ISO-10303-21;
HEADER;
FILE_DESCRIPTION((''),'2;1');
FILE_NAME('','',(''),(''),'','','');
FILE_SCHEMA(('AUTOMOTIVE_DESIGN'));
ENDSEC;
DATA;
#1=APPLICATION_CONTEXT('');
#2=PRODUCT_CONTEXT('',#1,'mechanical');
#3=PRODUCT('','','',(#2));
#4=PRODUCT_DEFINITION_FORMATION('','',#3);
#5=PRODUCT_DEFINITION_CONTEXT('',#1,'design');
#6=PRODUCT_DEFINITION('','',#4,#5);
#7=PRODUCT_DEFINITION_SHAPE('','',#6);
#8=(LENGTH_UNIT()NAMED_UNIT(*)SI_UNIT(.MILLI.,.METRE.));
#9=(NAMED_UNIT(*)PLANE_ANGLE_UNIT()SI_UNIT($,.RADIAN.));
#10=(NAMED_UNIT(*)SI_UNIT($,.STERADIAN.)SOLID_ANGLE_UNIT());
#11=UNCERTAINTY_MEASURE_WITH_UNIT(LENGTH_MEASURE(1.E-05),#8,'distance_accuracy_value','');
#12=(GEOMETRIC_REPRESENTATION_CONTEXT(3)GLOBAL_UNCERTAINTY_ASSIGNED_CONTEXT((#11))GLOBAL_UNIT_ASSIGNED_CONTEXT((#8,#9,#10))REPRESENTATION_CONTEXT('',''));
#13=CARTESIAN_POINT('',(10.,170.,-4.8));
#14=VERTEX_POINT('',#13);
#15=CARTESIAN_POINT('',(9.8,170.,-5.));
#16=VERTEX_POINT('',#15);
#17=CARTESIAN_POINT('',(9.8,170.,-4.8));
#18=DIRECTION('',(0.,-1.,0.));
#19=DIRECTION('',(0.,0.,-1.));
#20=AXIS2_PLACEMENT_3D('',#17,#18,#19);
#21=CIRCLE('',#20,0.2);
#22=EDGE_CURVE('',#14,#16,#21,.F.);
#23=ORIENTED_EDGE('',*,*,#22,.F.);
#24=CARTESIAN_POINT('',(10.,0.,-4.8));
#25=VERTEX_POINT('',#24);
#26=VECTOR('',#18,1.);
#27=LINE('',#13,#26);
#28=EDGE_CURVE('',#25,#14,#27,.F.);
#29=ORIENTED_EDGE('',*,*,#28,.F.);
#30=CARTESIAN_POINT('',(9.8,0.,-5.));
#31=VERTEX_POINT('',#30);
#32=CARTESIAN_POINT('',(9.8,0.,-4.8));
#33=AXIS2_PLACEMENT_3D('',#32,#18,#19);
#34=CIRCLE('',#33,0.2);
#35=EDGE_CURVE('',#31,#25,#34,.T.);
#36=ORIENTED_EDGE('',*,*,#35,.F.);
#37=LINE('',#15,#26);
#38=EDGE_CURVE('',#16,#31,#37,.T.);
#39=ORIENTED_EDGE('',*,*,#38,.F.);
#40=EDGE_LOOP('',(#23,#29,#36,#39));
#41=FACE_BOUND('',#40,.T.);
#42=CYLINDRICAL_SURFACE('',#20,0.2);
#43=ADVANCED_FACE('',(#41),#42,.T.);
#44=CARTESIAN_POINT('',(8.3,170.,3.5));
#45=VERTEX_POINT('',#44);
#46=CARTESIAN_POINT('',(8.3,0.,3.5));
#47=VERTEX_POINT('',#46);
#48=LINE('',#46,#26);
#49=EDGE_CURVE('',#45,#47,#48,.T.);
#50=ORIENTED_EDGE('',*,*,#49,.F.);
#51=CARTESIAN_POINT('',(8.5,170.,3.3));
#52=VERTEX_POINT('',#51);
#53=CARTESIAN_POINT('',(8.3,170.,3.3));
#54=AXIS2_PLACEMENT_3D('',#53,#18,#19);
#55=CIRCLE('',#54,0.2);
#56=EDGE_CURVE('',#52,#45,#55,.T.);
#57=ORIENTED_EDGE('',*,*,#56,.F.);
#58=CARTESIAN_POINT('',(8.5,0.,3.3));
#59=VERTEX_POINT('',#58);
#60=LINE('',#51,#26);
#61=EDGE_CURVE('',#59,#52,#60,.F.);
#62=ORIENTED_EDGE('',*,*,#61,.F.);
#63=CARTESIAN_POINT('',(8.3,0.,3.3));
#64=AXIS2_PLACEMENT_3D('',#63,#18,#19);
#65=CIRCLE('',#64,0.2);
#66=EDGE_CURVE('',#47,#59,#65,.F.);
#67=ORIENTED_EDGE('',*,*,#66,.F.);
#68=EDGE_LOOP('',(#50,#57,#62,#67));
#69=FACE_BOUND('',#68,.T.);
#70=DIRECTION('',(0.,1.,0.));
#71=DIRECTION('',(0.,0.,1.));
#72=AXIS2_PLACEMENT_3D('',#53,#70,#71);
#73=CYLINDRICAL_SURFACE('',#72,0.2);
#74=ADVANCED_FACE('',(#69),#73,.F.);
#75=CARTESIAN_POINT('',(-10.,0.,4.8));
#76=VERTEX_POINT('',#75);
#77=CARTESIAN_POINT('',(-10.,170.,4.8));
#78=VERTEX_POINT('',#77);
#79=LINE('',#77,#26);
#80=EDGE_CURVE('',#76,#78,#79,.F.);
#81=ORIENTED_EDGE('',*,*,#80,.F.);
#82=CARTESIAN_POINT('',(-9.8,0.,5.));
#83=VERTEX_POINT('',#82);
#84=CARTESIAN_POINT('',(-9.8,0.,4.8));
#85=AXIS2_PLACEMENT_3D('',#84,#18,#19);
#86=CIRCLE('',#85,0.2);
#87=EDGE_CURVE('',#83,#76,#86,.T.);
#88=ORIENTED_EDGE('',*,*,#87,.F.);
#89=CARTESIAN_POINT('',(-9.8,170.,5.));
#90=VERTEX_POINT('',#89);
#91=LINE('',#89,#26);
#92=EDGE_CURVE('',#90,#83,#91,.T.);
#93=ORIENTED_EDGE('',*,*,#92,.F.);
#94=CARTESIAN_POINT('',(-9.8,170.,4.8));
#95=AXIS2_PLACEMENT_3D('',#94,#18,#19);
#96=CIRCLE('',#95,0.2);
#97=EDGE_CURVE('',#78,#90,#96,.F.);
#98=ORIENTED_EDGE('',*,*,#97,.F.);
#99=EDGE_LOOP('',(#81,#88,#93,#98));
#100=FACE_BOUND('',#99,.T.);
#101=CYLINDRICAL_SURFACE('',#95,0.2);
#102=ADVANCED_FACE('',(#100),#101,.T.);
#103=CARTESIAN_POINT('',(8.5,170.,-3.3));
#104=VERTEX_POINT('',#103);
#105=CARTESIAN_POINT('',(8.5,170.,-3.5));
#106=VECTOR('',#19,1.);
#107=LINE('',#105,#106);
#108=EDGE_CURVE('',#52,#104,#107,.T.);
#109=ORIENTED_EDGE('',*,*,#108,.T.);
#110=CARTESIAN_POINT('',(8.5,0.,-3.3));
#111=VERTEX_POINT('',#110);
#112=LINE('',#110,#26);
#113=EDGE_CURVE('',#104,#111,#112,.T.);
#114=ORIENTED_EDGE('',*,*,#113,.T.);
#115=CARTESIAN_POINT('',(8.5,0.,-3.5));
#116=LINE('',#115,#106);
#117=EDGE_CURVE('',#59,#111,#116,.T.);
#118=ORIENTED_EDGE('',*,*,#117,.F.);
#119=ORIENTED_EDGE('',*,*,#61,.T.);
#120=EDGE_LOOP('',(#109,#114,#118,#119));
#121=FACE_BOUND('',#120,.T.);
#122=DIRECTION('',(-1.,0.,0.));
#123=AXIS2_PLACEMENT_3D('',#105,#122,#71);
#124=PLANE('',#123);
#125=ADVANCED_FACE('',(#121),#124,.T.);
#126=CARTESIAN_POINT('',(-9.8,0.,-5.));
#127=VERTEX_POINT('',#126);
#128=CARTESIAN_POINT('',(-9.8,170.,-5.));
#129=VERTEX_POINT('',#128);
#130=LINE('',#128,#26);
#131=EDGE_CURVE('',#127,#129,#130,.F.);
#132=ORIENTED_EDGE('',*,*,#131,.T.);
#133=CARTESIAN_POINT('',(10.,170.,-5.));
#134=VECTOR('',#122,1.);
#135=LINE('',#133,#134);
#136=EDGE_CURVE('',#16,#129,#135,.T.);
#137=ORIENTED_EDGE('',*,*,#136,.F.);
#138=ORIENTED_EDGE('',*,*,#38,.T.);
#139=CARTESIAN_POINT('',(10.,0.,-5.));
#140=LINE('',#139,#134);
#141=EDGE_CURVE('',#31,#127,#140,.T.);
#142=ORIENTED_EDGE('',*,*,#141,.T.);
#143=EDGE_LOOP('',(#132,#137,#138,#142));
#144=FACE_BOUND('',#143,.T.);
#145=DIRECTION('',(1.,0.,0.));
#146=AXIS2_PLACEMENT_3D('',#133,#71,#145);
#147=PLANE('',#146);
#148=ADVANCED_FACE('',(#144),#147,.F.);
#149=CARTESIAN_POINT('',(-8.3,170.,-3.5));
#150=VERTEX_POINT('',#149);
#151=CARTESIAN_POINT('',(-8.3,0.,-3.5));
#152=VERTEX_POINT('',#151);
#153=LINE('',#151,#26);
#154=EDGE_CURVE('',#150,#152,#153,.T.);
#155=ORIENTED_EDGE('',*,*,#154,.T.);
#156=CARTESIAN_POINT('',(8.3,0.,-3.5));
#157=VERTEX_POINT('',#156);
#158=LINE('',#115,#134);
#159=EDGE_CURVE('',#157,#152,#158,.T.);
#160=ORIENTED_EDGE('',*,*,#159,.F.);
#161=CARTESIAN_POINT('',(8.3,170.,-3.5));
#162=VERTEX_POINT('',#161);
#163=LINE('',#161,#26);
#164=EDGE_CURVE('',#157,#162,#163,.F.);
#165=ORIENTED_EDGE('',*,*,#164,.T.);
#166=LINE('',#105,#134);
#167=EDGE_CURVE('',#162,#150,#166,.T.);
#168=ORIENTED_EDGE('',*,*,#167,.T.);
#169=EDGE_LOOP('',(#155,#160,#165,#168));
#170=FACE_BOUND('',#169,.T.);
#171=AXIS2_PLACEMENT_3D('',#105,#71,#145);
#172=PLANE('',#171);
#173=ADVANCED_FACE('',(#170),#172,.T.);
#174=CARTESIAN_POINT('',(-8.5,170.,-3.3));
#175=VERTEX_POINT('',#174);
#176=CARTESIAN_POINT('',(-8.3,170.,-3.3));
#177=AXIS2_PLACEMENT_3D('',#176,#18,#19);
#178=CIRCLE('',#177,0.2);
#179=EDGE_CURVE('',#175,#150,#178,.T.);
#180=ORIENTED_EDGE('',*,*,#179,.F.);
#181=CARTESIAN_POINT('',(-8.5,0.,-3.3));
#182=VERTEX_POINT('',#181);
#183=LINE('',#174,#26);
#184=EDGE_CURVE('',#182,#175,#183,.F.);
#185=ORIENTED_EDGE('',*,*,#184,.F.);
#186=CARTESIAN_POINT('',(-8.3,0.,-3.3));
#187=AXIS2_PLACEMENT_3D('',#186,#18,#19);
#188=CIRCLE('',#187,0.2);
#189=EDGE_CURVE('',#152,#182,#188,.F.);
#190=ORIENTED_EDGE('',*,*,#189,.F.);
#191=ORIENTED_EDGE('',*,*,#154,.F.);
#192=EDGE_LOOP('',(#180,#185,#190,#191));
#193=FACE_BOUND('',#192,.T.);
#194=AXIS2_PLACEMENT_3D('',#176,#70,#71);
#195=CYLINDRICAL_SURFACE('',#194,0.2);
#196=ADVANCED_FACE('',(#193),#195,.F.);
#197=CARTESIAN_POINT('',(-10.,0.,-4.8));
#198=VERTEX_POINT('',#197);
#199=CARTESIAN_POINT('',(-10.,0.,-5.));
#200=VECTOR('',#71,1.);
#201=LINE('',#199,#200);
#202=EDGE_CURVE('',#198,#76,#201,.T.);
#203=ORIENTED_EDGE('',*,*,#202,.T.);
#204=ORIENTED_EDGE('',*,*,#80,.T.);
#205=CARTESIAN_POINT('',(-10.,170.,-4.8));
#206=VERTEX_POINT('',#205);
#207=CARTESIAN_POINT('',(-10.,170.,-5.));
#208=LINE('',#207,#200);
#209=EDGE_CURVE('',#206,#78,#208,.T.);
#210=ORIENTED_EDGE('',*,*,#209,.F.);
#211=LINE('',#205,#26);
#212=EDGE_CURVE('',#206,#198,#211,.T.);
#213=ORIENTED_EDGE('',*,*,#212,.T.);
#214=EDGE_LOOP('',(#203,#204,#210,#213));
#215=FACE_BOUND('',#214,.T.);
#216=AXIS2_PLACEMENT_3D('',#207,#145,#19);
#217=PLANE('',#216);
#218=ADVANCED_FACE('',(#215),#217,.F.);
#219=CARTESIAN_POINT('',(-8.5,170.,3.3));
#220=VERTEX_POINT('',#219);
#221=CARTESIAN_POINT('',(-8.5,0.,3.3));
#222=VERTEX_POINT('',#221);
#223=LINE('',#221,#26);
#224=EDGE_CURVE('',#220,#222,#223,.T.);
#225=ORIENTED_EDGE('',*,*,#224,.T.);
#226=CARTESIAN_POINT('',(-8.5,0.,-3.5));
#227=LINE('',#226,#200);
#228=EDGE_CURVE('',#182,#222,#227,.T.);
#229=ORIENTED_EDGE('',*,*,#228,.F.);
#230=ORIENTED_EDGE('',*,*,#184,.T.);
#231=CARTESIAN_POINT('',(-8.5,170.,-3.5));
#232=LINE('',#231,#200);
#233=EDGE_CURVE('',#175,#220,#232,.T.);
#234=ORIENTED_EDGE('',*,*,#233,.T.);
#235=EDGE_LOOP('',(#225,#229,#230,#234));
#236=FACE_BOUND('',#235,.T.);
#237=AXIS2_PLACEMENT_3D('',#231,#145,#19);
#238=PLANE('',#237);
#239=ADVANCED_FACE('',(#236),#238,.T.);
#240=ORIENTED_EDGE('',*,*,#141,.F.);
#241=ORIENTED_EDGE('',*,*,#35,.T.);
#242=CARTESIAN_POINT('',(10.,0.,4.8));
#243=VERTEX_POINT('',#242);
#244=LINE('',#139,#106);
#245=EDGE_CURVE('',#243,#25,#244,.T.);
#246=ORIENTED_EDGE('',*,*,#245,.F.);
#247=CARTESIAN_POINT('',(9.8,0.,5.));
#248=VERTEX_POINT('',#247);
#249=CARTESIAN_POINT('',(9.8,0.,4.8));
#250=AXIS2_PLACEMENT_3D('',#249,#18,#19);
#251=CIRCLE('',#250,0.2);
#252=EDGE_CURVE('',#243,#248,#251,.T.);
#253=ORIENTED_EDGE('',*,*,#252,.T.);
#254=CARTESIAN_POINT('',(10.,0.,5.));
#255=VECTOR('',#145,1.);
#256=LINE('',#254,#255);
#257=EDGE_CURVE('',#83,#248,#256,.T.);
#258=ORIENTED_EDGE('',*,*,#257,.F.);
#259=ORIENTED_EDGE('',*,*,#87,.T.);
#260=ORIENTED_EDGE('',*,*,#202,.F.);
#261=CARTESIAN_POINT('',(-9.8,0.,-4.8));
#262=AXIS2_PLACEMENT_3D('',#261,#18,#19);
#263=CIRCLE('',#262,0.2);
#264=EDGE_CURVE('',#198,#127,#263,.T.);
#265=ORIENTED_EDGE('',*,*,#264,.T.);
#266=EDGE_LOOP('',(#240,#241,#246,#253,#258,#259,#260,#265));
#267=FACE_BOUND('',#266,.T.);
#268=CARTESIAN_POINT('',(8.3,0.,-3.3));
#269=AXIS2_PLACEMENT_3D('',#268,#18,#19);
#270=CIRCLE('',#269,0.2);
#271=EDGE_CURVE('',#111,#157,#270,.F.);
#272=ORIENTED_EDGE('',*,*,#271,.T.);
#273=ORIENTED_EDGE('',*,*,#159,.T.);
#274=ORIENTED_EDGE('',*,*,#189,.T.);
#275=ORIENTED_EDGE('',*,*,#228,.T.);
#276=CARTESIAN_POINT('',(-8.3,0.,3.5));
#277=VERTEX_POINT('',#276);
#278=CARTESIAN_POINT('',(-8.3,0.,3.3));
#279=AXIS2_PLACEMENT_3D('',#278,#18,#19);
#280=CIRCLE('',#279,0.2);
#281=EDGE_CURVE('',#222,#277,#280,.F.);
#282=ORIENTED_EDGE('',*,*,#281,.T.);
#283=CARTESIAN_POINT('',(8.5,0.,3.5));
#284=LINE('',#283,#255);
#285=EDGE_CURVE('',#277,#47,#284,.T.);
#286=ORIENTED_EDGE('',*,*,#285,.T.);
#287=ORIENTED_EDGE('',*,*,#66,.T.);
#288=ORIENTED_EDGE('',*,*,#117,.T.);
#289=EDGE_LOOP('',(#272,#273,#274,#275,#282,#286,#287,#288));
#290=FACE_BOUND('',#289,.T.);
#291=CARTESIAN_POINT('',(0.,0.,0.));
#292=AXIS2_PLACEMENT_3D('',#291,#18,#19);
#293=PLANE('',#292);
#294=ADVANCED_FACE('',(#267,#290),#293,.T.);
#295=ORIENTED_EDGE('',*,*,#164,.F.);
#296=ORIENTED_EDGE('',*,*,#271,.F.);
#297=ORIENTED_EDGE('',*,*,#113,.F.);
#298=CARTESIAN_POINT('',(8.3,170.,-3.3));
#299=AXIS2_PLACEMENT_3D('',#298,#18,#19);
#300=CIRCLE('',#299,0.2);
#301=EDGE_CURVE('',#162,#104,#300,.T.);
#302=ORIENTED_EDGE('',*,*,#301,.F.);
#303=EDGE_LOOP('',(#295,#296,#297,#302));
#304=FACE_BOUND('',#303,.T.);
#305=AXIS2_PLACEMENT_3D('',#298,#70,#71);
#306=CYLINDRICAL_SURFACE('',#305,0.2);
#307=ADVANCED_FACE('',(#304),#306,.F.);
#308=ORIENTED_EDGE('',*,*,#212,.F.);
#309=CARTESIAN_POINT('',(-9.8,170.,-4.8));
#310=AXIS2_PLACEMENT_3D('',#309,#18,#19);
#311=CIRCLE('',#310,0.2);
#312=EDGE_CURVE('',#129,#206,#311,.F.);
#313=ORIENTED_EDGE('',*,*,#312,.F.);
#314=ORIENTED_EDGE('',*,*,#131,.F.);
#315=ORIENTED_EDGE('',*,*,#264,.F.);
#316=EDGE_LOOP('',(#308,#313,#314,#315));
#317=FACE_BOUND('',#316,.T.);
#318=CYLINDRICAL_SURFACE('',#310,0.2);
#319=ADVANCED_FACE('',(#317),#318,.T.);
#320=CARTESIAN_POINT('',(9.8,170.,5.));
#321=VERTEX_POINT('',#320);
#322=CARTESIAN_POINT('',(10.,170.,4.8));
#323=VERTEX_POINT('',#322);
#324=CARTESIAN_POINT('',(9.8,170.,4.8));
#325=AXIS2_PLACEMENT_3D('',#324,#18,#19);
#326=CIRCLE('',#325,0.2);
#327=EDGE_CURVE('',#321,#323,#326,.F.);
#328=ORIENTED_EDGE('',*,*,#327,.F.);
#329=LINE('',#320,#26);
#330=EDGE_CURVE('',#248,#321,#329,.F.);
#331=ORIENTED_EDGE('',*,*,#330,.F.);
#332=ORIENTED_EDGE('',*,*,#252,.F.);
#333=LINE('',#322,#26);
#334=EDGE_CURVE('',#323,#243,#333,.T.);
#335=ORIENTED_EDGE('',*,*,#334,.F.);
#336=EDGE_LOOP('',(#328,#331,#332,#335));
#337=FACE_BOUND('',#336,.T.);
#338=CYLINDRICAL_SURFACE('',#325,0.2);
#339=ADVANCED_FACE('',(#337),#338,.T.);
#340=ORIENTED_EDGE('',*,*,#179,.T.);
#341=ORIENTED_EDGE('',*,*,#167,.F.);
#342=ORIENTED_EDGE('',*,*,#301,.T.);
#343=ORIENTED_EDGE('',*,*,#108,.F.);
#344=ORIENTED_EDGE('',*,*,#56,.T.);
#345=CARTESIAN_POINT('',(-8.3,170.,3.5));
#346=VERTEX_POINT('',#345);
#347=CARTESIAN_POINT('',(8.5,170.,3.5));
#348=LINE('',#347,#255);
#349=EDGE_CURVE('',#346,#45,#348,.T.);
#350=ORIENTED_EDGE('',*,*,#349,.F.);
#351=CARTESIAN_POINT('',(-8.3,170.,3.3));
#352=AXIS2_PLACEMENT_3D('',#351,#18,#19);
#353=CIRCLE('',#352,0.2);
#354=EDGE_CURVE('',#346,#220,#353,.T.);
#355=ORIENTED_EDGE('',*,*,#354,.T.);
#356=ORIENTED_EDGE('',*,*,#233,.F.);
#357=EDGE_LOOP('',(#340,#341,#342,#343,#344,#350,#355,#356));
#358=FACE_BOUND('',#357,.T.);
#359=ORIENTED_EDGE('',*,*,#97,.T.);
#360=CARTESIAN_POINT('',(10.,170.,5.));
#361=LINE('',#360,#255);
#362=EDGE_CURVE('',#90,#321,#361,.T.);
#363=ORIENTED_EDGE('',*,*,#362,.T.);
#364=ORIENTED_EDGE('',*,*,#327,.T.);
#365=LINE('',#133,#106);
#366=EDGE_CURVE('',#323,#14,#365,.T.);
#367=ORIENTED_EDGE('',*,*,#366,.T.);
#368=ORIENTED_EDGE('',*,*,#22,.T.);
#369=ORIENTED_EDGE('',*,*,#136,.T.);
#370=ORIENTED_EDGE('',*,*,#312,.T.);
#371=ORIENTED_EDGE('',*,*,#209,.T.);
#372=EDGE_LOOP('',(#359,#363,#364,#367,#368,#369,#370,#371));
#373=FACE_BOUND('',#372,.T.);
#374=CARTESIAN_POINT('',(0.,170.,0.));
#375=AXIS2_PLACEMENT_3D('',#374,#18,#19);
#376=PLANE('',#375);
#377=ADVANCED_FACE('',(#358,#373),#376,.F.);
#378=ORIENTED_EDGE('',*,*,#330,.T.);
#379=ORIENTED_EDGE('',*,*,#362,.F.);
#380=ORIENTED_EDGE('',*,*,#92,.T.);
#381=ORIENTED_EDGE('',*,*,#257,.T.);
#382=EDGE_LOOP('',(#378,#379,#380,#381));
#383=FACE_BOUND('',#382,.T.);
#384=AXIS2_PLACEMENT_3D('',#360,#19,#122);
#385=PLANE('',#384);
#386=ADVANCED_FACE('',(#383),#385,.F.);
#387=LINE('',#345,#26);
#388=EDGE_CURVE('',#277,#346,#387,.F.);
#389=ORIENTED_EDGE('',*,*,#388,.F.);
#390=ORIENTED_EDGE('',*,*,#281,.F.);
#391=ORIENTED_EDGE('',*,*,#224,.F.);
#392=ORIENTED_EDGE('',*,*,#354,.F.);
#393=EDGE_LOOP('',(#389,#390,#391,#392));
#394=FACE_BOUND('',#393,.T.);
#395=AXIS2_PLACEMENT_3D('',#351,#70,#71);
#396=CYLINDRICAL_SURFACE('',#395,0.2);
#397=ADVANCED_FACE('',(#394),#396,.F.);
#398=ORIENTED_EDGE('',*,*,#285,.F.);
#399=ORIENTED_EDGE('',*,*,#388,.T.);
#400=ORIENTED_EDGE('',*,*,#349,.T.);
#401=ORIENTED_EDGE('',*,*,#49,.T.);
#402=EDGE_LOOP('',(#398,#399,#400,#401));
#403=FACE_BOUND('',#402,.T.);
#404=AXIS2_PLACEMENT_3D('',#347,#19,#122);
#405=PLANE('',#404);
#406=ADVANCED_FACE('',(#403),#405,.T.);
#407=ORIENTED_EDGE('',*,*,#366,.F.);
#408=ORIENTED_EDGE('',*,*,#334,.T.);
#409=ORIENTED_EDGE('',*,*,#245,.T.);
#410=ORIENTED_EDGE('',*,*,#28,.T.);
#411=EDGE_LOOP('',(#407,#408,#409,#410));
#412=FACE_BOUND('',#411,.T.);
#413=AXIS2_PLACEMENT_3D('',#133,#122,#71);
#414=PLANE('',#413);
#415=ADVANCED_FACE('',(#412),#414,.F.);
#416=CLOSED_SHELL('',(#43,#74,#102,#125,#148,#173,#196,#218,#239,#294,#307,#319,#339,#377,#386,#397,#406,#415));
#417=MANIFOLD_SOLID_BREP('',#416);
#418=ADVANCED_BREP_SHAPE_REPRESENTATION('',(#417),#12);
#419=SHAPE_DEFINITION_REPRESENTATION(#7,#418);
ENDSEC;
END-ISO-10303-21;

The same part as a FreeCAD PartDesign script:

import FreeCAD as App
import Part
import Sketcher

V = App.Vector


def edges_at(feature, points):
    """Names of the edges that pass closest to the given points."""
    edges = feature.Shape.Edges
    near = lambda p: min(range(len(edges)), key=lambda i: edges[i].distToShape(Part.Vertex(*p))[0])
    return sorted({f"Edge{near(p) + 1}" for p in points})

doc = App.newDocument("Part")
params = doc.addObject("Spreadsheet::Sheet", "Params")
for row, (alias, value) in enumerate([
    ("sketch1_width", "20 mm"),
    ("sketch1_width2", "17 mm"),
    ("sketch1_height", "10 mm"),
    ("sketch1_height2", "7 mm"),
    ("pad1_length", "170 mm"),
    ("fillet_radius", "0.2 mm"),
], start=1):
    params.set(f"A{row}", alias)
    params.set(f"B{row}", "=" + value)
    params.setAlias(f"B{row}", alias)

body = doc.addObject("PartDesign::Body", "Body")

# Sketch on XZ plane
sketch1 = body.newObject("Sketcher::SketchObject", "Sketch")
sketch1.AttachmentSupport = (doc.getObject("XZ_Plane"), [""])
sketch1.MapMode = "FlatFace"
sketch1.addGeometry(Part.LineSegment(V(-10, -5, 0), V(-10, 5, 0)), False)
sketch1.addGeometry(Part.LineSegment(V(-10, 5, 0), V(10, 5, 0)), False)
sketch1.addGeometry(Part.LineSegment(V(10, 5, 0), V(10, -5, 0)), False)
sketch1.addGeometry(Part.LineSegment(V(10, -5, 0), V(-10, -5, 0)), False)
sketch1.addGeometry(Part.LineSegment(V(8.5, 3.5, 0), V(-8.5, 3.5, 0)), False)
sketch1.addGeometry(Part.LineSegment(V(-8.5, 3.5, 0), V(-8.5, -3.5, 0)), False)
sketch1.addGeometry(Part.LineSegment(V(-8.5, -3.5, 0), V(8.5, -3.5, 0)), False)
sketch1.addGeometry(Part.LineSegment(V(8.5, -3.5, 0), V(8.5, 3.5, 0)), False)
sketch1.addConstraint(Sketcher.Constraint("Coincident", 0, 2, 1, 1))
sketch1.addConstraint(Sketcher.Constraint("Coincident", 1, 2, 2, 1))
sketch1.addConstraint(Sketcher.Constraint("Coincident", 2, 2, 3, 1))
sketch1.addConstraint(Sketcher.Constraint("Coincident", 3, 2, 0, 1))
sketch1.addConstraint(Sketcher.Constraint("Coincident", 4, 2, 5, 1))
sketch1.addConstraint(Sketcher.Constraint("Coincident", 5, 2, 6, 1))
sketch1.addConstraint(Sketcher.Constraint("Coincident", 6, 2, 7, 1))
sketch1.addConstraint(Sketcher.Constraint("Coincident", 7, 2, 4, 1))
sketch1.addConstraint(Sketcher.Constraint("Vertical", 0))
sketch1.addConstraint(Sketcher.Constraint("Horizontal", 1))
sketch1.addConstraint(Sketcher.Constraint("Vertical", 2))
sketch1.addConstraint(Sketcher.Constraint("Horizontal", 3))
sketch1.addConstraint(Sketcher.Constraint("Horizontal", 4))
sketch1.addConstraint(Sketcher.Constraint("Vertical", 5))
sketch1.addConstraint(Sketcher.Constraint("Horizontal", 6))
sketch1.addConstraint(Sketcher.Constraint("Vertical", 7))
sketch1.addConstraint(Sketcher.Constraint("Symmetric", 0, 2, 2, 2, -1, 1))
sketch1.addConstraint(Sketcher.Constraint("Symmetric", 4, 2, 6, 2, -1, 1))
sketch1.addConstraint(Sketcher.Constraint("DistanceX", 1, 1, 1, 2, 20.0))
sketch1.addConstraint(Sketcher.Constraint("DistanceX", 4, 2, 4, 1, 17.0))
sketch1.addConstraint(Sketcher.Constraint("DistanceY", 0, 1, 0, 2, 10.0))
sketch1.addConstraint(Sketcher.Constraint("DistanceY", 5, 2, 5, 1, 7.0))
sketch1.setExpression("Constraints[18]", "Params.sketch1_width")
sketch1.setExpression("Constraints[19]", "Params.sketch1_width2")
sketch1.setExpression("Constraints[20]", "Params.sketch1_height")
sketch1.setExpression("Constraints[21]", "Params.sketch1_height2")
pad1 = body.newObject("PartDesign::Pad", "Pad")
pad1.Profile = sketch1
pad1.setExpression("Length", "Params.pad1_length")
pad1.Reversed = True
doc.recompute()

fillet = body.newObject("PartDesign::Fillet", "Fillet")
fillet.Base = (pad1, edges_at(pad1, [
    (8.5, 85, 3.5),
    (8.5, 85, -3.5),
    (-8.5, 85, -3.5),
    (-8.5, 85, 3.5),
    (-10, 85, -5),
    (10, 85, -5),
    (10, 85, 5),
    (-10, 85, 5),
]))
fillet.setExpression("Radius", "Params.fillet_radius")

doc.recompute()
